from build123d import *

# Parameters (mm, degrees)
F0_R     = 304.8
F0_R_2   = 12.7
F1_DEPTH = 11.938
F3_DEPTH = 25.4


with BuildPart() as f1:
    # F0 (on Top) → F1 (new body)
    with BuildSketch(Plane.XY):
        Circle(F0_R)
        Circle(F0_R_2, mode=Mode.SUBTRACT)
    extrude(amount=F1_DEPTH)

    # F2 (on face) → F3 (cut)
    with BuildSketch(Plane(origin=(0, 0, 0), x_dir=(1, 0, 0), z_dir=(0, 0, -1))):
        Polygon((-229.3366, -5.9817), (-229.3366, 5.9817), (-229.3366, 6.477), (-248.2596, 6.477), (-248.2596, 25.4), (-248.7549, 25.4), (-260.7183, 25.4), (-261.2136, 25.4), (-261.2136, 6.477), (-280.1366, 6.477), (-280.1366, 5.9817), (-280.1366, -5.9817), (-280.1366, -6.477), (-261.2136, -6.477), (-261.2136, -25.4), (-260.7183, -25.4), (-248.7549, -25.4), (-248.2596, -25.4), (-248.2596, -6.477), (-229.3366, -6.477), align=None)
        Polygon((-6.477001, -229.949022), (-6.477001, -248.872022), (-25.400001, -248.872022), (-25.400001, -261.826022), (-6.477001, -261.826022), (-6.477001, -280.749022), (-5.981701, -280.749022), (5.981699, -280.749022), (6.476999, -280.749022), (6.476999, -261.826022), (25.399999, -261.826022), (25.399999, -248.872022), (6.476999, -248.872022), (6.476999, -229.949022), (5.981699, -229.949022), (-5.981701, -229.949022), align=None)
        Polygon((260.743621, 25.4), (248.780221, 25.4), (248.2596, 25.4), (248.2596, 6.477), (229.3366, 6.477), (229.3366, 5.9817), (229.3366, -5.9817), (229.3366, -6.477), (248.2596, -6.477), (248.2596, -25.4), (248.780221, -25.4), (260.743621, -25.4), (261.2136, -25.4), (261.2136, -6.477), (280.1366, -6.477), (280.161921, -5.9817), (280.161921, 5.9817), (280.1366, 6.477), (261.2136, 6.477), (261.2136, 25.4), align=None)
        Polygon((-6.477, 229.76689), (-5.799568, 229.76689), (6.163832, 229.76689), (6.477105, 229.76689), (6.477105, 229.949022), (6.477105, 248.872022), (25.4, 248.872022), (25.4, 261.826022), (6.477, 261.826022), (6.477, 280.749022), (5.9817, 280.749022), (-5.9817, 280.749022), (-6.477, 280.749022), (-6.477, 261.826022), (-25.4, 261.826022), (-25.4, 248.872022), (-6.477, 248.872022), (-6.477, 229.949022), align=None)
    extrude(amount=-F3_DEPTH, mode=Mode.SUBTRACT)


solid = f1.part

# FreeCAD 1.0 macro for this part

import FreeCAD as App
import Part
import Sketcher
Q = App.Units.Quantity

doc = App.newDocument("Part")
body = doc.addObject("PartDesign::Body", "Body")

# Sketch on XY plane
sketch1 = body.newObject("Sketcher::SketchObject", "Sketch")
sketch1.AttachmentSupport = (doc.getObject("XY_Plane"), [""])
sketch1.MapMode = "FlatFace"
sketch1.addGeometry([
    Part.Circle(App.Vector(0, 0, 0), App.Vector(0, 0, 1), 304.8),
    Part.Circle(App.Vector(0, 0, 0), App.Vector(0, 0, 1), 12.7),
], False)
sketch1.addConstraint([
    Sketcher.Constraint("Coincident", 0, 3, -1, 1),
    Sketcher.Constraint("Coincident", 1, 3, -1, 1),
    Sketcher.Constraint("Diameter", 0, Q("24 in")),
    Sketcher.Constraint("Diameter", 1, Q("1 in")),
])
pad1 = body.newObject("PartDesign::Pad", "Pad")
pad1.Profile = sketch1
pad1.Length = Q("0.47 in")

# Sketch on XY plane
sketch2 = body.newObject("Sketcher::SketchObject", "Sketch001")
sketch2.AttachmentSupport = (doc.getObject("XY_Plane"), [""])
sketch2.MapMode = "FlatFace"
sketch2.addGeometry([
    Part.LineSegment(App.Vector(-229.3366, -6.477, 0), App.Vector(-248.2596, -6.477, 0)),  # 0
    Part.LineSegment(App.Vector(-248.2596, -6.477, 0), App.Vector(-248.2596, -25.4, 0)),  # 1
    Part.LineSegment(App.Vector(-248.2596, -25.4, 0), App.Vector(-261.2136, -25.4, 0)),  # 2
    Part.LineSegment(App.Vector(-261.2136, -25.4, 0), App.Vector(-261.2136, -6.477, 0)),  # 3
    Part.LineSegment(App.Vector(-261.2136, -6.477, 0), App.Vector(-280.1366, -6.477, 0)),  # 4
    Part.LineSegment(App.Vector(-280.1366, -6.477, 0), App.Vector(-280.1366, 6.477, 0)),  # 5
    Part.LineSegment(App.Vector(-280.1366, 6.477, 0), App.Vector(-261.2136, 6.477, 0)),  # 6
    Part.LineSegment(App.Vector(-261.2136, 6.477, 0), App.Vector(-261.2136, 25.4, 0)),  # 7
    Part.LineSegment(App.Vector(-261.2136, 25.4, 0), App.Vector(-248.2596, 25.4, 0)),  # 8
    Part.LineSegment(App.Vector(-248.2596, 25.4, 0), App.Vector(-248.2596, 6.477, 0)),  # 9
    Part.LineSegment(App.Vector(-248.2596, 6.477, 0), App.Vector(-229.3366, 6.477, 0)),  # 10
    Part.LineSegment(App.Vector(-229.3366, 6.477, 0), App.Vector(-229.3366, -6.477, 0)),  # 11
    Part.LineSegment(App.Vector(-6.477001, 229.949022, 0), App.Vector(-6.477001, 248.872022, 0)),  # 12
    Part.LineSegment(App.Vector(-6.477001, 248.872022, 0), App.Vector(-25.400001, 248.872022, 0)),  # 13
    Part.LineSegment(App.Vector(-25.400001, 248.872022, 0), App.Vector(-25.400001, 261.826022, 0)),  # 14
    Part.LineSegment(App.Vector(-25.400001, 261.826022, 0), App.Vector(-6.477001, 261.826022, 0)),  # 15
    Part.LineSegment(App.Vector(-6.477001, 261.826022, 0), App.Vector(-6.477001, 280.749022, 0)),  # 16
    Part.LineSegment(App.Vector(-6.477001, 280.749022, 0), App.Vector(6.476999, 280.749022, 0)),  # 17
    Part.LineSegment(App.Vector(6.476999, 280.749022, 0), App.Vector(6.476999, 261.826022, 0)),  # 18
    Part.LineSegment(App.Vector(6.476999, 261.826022, 0), App.Vector(25.399999, 261.826022, 0)),  # 19
    Part.LineSegment(App.Vector(25.399999, 261.826022, 0), App.Vector(25.399999, 248.872022, 0)),  # 20
    Part.LineSegment(App.Vector(25.399999, 248.872022, 0), App.Vector(6.476999, 248.872022, 0)),  # 21
    Part.LineSegment(App.Vector(6.476999, 248.872022, 0), App.Vector(6.476999, 229.949022, 0)),  # 22
    Part.LineSegment(App.Vector(6.476999, 229.949022, 0), App.Vector(-6.477001, 229.949022, 0)),  # 23
    Part.LineSegment(App.Vector(248.2596, -25.4, 0), App.Vector(248.2596, -6.477, 0)),  # 24
    Part.LineSegment(App.Vector(248.2596, -6.477, 0), App.Vector(229.3366, -6.477, 0)),  # 25
    Part.LineSegment(App.Vector(229.3366, -6.477, 0), App.Vector(229.3366, 6.477, 0)),  # 26
    Part.LineSegment(App.Vector(229.3366, 6.477, 0), App.Vector(248.2596, 6.477, 0)),  # 27
    Part.LineSegment(App.Vector(248.2596, 6.477, 0), App.Vector(248.2596, 25.4, 0)),  # 28
    Part.LineSegment(App.Vector(248.2596, 25.4, 0), App.Vector(261.2136, 25.4, 0)),  # 29
    Part.LineSegment(App.Vector(261.2136, 25.4, 0), App.Vector(261.2136, 6.477, 0)),  # 30
    Part.LineSegment(App.Vector(261.2136, 6.477, 0), App.Vector(280.1366, 6.477, 0)),  # 31
    Part.LineSegment(App.Vector(280.1366, 6.477, 0), App.Vector(280.161921, 5.9817, 0)),  # 32
    Part.LineSegment(App.Vector(280.161921, 5.9817, 0), App.Vector(280.161921, -5.9817, 0)),  # 33
    Part.LineSegment(App.Vector(280.161921, -5.9817, 0), App.Vector(280.1366, -6.477, 0)),  # 34
    Part.LineSegment(App.Vector(280.1366, -6.477, 0), App.Vector(261.2136, -6.477, 0)),  # 35
    Part.LineSegment(App.Vector(261.2136, -6.477, 0), App.Vector(261.2136, -25.4, 0)),  # 36
    Part.LineSegment(App.Vector(261.2136, -25.4, 0), App.Vector(248.2596, -25.4, 0)),  # 37
    Part.LineSegment(App.Vector(-6.477, -229.76689, 0), App.Vector(6.477105, -229.76689, 0)),  # 38
    Part.LineSegment(App.Vector(6.477105, -229.76689, 0), App.Vector(6.477105, -248.872022, 0)),  # 39
    Part.LineSegment(App.Vector(6.477105, -248.872022, 0), App.Vector(25.4, -248.872022, 0)),  # 40
    Part.LineSegment(App.Vector(25.4, -248.872022, 0), App.Vector(25.4, -261.826022, 0)),  # 41
    Part.LineSegment(App.Vector(25.4, -261.826022, 0), App.Vector(6.477, -261.826022, 0)),  # 42
    Part.LineSegment(App.Vector(6.477, -261.826022, 0), App.Vector(6.477, -280.749022, 0)),  # 43
    Part.LineSegment(App.Vector(6.477, -280.749022, 0), App.Vector(-6.477, -280.749022, 0)),  # 44
    Part.LineSegment(App.Vector(-6.477, -280.749022, 0), App.Vector(-6.477, -261.826022, 0)),  # 45
    Part.LineSegment(App.Vector(-6.477, -261.826022, 0), App.Vector(-25.4, -261.826022, 0)),  # 46
    Part.LineSegment(App.Vector(-25.4, -261.826022, 0), App.Vector(-25.4, -248.872022, 0)),  # 47
    Part.LineSegment(App.Vector(-25.4, -248.872022, 0), App.Vector(-6.477, -248.872022, 0)),  # 48
    Part.LineSegment(App.Vector(-6.477, -248.872022, 0), App.Vector(-6.477, -229.76689, 0)),  # 49
], False)
sketch2.addConstraint([
    Sketcher.Constraint("Coincident", 0, 2, 1, 1),
    Sketcher.Constraint("Coincident", 1, 2, 2, 1),
    Sketcher.Constraint("Coincident", 2, 2, 3, 1),
    Sketcher.Constraint("Coincident", 3, 2, 4, 1),
    Sketcher.Constraint("Coincident", 4, 2, 5, 1),
    Sketcher.Constraint("Coincident", 5, 2, 6, 1),
    Sketcher.Constraint("Coincident", 6, 2, 7, 1),
    Sketcher.Constraint("Coincident", 7, 2, 8, 1),
    Sketcher.Constraint("Coincident", 8, 2, 9, 1),
    Sketcher.Constraint("Coincident", 9, 2, 10, 1),
    Sketcher.Constraint("Coincident", 10, 2, 11, 1),
    Sketcher.Constraint("Coincident", 11, 2, 0, 1),
    Sketcher.Constraint("Coincident", 12, 2, 13, 1),
    Sketcher.Constraint("Coincident", 13, 2, 14, 1),
    Sketcher.Constraint("Coincident", 14, 2, 15, 1),
    Sketcher.Constraint("Coincident", 15, 2, 16, 1),
    Sketcher.Constraint("Coincident", 16, 2, 17, 1),
    Sketcher.Constraint("Coincident", 17, 2, 18, 1),
    Sketcher.Constraint("Coincident", 18, 2, 19, 1),
    Sketcher.Constraint("Coincident", 19, 2, 20, 1),
    Sketcher.Constraint("Coincident", 20, 2, 21, 1),
    Sketcher.Constraint("Coincident", 21, 2, 22, 1),
    Sketcher.Constraint("Coincident", 22, 2, 23, 1),
    Sketcher.Constraint("Coincident", 23, 2, 12, 1),
    Sketcher.Constraint("Coincident", 24, 2, 25, 1),
    Sketcher.Constraint("Coincident", 25, 2, 26, 1),
    Sketcher.Constraint("Coincident", 26, 2, 27, 1),
    Sketcher.Constraint("Coincident", 27, 2, 28, 1),
    Sketcher.Constraint("Coincident", 28, 2, 29, 1),
    Sketcher.Constraint("Coincident", 29, 2, 30, 1),
    Sketcher.Constraint("Coincident", 30, 2, 31, 1),
    Sketcher.Constraint("Coincident", 31, 2, 32, 1),
    Sketcher.Constraint("Coincident", 32, 2, 33, 1),
    Sketcher.Constraint("Coincident", 33, 2, 34, 1),
    Sketcher.Constraint("Coincident", 34, 2, 35, 1),
    Sketcher.Constraint("Coincident", 35, 2, 36, 1),
    Sketcher.Constraint("Coincident", 36, 2, 37, 1),
    Sketcher.Constraint("Coincident", 37, 2, 24, 1),
    Sketcher.Constraint("Coincident", 38, 2, 39, 1),
    Sketcher.Constraint("Coincident", 39, 2, 40, 1),
    Sketcher.Constraint("Coincident", 40, 2, 41, 1),
    Sketcher.Constraint("Coincident", 41, 2, 42, 1),
    Sketcher.Constraint("Coincident", 42, 2, 43, 1),
    Sketcher.Constraint("Coincident", 43, 2, 44, 1),
    Sketcher.Constraint("Coincident", 44, 2, 45, 1),
    Sketcher.Constraint("Coincident", 45, 2, 46, 1),
    Sketcher.Constraint("Coincident", 46, 2, 47, 1),
    Sketcher.Constraint("Coincident", 47, 2, 48, 1),
    Sketcher.Constraint("Coincident", 48, 2, 49, 1),
    Sketcher.Constraint("Coincident", 49, 2, 38, 1),
    Sketcher.Constraint("Horizontal", 0),
    Sketcher.Constraint("Vertical", 1),
    Sketcher.Constraint("Horizontal", 2),
    Sketcher.Constraint("Vertical", 3),
    Sketcher.Constraint("Horizontal", 4),
    Sketcher.Constraint("Vertical", 5),
    Sketcher.Constraint("Horizontal", 6),
    Sketcher.Constraint("Vertical", 7),
    Sketcher.Constraint("Horizontal", 8),
    Sketcher.Constraint("Vertical", 9),
    Sketcher.Constraint("Horizontal", 10),
    Sketcher.Constraint("Vertical", 11),
    Sketcher.Constraint("Vertical", 12),
    Sketcher.Constraint("Horizontal", 13),
    Sketcher.Constraint("Vertical", 14),
    Sketcher.Constraint("Horizontal", 15),
    Sketcher.Constraint("Vertical", 16),
    Sketcher.Constraint("Horizontal", 17),
    Sketcher.Constraint("Vertical", 18),
    Sketcher.Constraint("Horizontal", 19),
    Sketcher.Constraint("Vertical", 20),
    Sketcher.Constraint("Horizontal", 21),
    Sketcher.Constraint("Vertical", 22),
    Sketcher.Constraint("Horizontal", 23),
    Sketcher.Constraint("Vertical", 24),
    Sketcher.Constraint("Horizontal", 25),
    Sketcher.Constraint("Vertical", 26),
    Sketcher.Constraint("Horizontal", 27),
    Sketcher.Constraint("Vertical", 28),
    Sketcher.Constraint("Horizontal", 29),
    Sketcher.Constraint("Vertical", 30),
    Sketcher.Constraint("Horizontal", 31),
    Sketcher.Constraint("Vertical", 33),
    Sketcher.Constraint("Horizontal", 35),
    Sketcher.Constraint("Vertical", 36),
    Sketcher.Constraint("Horizontal", 37),
    Sketcher.Constraint("Horizontal", 38),
    Sketcher.Constraint("Vertical", 39),
    Sketcher.Constraint("Horizontal", 40),
    Sketcher.Constraint("Vertical", 41),
    Sketcher.Constraint("Horizontal", 42),
    Sketcher.Constraint("Vertical", 43),
    Sketcher.Constraint("Horizontal", 44),
    Sketcher.Constraint("Vertical", 45),
    Sketcher.Constraint("Horizontal", 46),
    Sketcher.Constraint("Vertical", 47),
    Sketcher.Constraint("Horizontal", 48),
    Sketcher.Constraint("Vertical", 49),
    Sketcher.Constraint("Symmetric", 9, 2, 24, 2, -1, 1),
    Sketcher.Constraint("Symmetric", 11, 2, 26, 2, -1, 1),
    Sketcher.Constraint("Symmetric", 1, 2, 28, 2, -1, 1),
    Sketcher.Constraint("Symmetric", 3, 2, 30, 2, -1, 1),
    Sketcher.Constraint("Symmetric", 5, 2, 34, 2, -1, 1),
    Sketcher.Constraint("Symmetric", 7, 2, 36, 2, -1, 1),
    Sketcher.Constraint("Symmetric", 13, 2, 40, 2, -1, 1),
    Sketcher.Constraint("Symmetric", 15, 2, 42, 2, -1, 1),
    Sketcher.Constraint("Symmetric", 17, 2, 44, 2, -1, 1),
    Sketcher.Constraint("Symmetric", 19, 2, 46, 2, -1, 1),
    Sketcher.Constraint("Symmetric", 21, 2, 48, 2, -1, 1),
    Sketcher.Constraint("Symmetric", 15, 2, 18, 2, -2),
    Sketcher.Constraint("Symmetric", 13, 2, 20, 2, -2),
    Sketcher.Constraint("Symmetric", 0, 2, 24, 2, -2),
    Sketcher.Constraint("Symmetric", 7, 2, 29, 2, -2),
    Sketcher.Constraint("Symmetric", 5, 2, 31, 2, -2),
    Sketcher.Constraint("Horizontal", 0, 2, 3, 2),
    Sketcher.Constraint("Vertical", 12, 2, 15, 2),
    Sketcher.Constraint("Vertical", 18, 2, 21, 2),
    Sketcher.Constraint("Equal", 0, 4),
    Sketcher.Constraint("Equal", 10, 13),
    Sketcher.Constraint("Equal", 8, 17),
    Sketcher.Constraint("Equal", 48, 1),
    Sketcher.Constraint("Equal", 44, 5),
    Sketcher.Constraint("Equal", 9, 12),
    Sketcher.Constraint("Equal", 11, 14),
    Sketcher.Constraint("Equal", 12, 16),
    Sketcher.Constraint("Equal", 32, 34),
    Sketcher.Constraint("DistanceY", 1, 2, -1, 1, Q("1 in")),
    Sketcher.Constraint("DistanceX", 2, 2, 2, 1, Q("0.51 in")),
    Sketcher.Constraint("DistanceY", 33, 2, 33, 1, Q("0.471 in")),
    Sketcher.Constraint("DistanceX", 0, 2, -1, 1, Q("9.774 in")),
    Sketcher.Constraint("DistanceY", 39, 2, 39, 1, Q("19.105132 mm")),
    Sketcher.Constraint("DistanceX", 38, 1, 38, 2, Q("12.954105 mm")),
    Sketcher.Constraint("DistanceY", -1, 1, 12, 2, Q("248.872022 mm")),
    Sketcher.Constraint("DistanceX", -1, 1, 32, 2, Q("280.161921 mm")),
])
pocket1 = body.newObject("PartDesign::Pocket", "Pocket")
pocket1.Profile = sketch2
pocket1.Length = Q("1 in")
pocket1.Reversed = True

doc.recompute()
